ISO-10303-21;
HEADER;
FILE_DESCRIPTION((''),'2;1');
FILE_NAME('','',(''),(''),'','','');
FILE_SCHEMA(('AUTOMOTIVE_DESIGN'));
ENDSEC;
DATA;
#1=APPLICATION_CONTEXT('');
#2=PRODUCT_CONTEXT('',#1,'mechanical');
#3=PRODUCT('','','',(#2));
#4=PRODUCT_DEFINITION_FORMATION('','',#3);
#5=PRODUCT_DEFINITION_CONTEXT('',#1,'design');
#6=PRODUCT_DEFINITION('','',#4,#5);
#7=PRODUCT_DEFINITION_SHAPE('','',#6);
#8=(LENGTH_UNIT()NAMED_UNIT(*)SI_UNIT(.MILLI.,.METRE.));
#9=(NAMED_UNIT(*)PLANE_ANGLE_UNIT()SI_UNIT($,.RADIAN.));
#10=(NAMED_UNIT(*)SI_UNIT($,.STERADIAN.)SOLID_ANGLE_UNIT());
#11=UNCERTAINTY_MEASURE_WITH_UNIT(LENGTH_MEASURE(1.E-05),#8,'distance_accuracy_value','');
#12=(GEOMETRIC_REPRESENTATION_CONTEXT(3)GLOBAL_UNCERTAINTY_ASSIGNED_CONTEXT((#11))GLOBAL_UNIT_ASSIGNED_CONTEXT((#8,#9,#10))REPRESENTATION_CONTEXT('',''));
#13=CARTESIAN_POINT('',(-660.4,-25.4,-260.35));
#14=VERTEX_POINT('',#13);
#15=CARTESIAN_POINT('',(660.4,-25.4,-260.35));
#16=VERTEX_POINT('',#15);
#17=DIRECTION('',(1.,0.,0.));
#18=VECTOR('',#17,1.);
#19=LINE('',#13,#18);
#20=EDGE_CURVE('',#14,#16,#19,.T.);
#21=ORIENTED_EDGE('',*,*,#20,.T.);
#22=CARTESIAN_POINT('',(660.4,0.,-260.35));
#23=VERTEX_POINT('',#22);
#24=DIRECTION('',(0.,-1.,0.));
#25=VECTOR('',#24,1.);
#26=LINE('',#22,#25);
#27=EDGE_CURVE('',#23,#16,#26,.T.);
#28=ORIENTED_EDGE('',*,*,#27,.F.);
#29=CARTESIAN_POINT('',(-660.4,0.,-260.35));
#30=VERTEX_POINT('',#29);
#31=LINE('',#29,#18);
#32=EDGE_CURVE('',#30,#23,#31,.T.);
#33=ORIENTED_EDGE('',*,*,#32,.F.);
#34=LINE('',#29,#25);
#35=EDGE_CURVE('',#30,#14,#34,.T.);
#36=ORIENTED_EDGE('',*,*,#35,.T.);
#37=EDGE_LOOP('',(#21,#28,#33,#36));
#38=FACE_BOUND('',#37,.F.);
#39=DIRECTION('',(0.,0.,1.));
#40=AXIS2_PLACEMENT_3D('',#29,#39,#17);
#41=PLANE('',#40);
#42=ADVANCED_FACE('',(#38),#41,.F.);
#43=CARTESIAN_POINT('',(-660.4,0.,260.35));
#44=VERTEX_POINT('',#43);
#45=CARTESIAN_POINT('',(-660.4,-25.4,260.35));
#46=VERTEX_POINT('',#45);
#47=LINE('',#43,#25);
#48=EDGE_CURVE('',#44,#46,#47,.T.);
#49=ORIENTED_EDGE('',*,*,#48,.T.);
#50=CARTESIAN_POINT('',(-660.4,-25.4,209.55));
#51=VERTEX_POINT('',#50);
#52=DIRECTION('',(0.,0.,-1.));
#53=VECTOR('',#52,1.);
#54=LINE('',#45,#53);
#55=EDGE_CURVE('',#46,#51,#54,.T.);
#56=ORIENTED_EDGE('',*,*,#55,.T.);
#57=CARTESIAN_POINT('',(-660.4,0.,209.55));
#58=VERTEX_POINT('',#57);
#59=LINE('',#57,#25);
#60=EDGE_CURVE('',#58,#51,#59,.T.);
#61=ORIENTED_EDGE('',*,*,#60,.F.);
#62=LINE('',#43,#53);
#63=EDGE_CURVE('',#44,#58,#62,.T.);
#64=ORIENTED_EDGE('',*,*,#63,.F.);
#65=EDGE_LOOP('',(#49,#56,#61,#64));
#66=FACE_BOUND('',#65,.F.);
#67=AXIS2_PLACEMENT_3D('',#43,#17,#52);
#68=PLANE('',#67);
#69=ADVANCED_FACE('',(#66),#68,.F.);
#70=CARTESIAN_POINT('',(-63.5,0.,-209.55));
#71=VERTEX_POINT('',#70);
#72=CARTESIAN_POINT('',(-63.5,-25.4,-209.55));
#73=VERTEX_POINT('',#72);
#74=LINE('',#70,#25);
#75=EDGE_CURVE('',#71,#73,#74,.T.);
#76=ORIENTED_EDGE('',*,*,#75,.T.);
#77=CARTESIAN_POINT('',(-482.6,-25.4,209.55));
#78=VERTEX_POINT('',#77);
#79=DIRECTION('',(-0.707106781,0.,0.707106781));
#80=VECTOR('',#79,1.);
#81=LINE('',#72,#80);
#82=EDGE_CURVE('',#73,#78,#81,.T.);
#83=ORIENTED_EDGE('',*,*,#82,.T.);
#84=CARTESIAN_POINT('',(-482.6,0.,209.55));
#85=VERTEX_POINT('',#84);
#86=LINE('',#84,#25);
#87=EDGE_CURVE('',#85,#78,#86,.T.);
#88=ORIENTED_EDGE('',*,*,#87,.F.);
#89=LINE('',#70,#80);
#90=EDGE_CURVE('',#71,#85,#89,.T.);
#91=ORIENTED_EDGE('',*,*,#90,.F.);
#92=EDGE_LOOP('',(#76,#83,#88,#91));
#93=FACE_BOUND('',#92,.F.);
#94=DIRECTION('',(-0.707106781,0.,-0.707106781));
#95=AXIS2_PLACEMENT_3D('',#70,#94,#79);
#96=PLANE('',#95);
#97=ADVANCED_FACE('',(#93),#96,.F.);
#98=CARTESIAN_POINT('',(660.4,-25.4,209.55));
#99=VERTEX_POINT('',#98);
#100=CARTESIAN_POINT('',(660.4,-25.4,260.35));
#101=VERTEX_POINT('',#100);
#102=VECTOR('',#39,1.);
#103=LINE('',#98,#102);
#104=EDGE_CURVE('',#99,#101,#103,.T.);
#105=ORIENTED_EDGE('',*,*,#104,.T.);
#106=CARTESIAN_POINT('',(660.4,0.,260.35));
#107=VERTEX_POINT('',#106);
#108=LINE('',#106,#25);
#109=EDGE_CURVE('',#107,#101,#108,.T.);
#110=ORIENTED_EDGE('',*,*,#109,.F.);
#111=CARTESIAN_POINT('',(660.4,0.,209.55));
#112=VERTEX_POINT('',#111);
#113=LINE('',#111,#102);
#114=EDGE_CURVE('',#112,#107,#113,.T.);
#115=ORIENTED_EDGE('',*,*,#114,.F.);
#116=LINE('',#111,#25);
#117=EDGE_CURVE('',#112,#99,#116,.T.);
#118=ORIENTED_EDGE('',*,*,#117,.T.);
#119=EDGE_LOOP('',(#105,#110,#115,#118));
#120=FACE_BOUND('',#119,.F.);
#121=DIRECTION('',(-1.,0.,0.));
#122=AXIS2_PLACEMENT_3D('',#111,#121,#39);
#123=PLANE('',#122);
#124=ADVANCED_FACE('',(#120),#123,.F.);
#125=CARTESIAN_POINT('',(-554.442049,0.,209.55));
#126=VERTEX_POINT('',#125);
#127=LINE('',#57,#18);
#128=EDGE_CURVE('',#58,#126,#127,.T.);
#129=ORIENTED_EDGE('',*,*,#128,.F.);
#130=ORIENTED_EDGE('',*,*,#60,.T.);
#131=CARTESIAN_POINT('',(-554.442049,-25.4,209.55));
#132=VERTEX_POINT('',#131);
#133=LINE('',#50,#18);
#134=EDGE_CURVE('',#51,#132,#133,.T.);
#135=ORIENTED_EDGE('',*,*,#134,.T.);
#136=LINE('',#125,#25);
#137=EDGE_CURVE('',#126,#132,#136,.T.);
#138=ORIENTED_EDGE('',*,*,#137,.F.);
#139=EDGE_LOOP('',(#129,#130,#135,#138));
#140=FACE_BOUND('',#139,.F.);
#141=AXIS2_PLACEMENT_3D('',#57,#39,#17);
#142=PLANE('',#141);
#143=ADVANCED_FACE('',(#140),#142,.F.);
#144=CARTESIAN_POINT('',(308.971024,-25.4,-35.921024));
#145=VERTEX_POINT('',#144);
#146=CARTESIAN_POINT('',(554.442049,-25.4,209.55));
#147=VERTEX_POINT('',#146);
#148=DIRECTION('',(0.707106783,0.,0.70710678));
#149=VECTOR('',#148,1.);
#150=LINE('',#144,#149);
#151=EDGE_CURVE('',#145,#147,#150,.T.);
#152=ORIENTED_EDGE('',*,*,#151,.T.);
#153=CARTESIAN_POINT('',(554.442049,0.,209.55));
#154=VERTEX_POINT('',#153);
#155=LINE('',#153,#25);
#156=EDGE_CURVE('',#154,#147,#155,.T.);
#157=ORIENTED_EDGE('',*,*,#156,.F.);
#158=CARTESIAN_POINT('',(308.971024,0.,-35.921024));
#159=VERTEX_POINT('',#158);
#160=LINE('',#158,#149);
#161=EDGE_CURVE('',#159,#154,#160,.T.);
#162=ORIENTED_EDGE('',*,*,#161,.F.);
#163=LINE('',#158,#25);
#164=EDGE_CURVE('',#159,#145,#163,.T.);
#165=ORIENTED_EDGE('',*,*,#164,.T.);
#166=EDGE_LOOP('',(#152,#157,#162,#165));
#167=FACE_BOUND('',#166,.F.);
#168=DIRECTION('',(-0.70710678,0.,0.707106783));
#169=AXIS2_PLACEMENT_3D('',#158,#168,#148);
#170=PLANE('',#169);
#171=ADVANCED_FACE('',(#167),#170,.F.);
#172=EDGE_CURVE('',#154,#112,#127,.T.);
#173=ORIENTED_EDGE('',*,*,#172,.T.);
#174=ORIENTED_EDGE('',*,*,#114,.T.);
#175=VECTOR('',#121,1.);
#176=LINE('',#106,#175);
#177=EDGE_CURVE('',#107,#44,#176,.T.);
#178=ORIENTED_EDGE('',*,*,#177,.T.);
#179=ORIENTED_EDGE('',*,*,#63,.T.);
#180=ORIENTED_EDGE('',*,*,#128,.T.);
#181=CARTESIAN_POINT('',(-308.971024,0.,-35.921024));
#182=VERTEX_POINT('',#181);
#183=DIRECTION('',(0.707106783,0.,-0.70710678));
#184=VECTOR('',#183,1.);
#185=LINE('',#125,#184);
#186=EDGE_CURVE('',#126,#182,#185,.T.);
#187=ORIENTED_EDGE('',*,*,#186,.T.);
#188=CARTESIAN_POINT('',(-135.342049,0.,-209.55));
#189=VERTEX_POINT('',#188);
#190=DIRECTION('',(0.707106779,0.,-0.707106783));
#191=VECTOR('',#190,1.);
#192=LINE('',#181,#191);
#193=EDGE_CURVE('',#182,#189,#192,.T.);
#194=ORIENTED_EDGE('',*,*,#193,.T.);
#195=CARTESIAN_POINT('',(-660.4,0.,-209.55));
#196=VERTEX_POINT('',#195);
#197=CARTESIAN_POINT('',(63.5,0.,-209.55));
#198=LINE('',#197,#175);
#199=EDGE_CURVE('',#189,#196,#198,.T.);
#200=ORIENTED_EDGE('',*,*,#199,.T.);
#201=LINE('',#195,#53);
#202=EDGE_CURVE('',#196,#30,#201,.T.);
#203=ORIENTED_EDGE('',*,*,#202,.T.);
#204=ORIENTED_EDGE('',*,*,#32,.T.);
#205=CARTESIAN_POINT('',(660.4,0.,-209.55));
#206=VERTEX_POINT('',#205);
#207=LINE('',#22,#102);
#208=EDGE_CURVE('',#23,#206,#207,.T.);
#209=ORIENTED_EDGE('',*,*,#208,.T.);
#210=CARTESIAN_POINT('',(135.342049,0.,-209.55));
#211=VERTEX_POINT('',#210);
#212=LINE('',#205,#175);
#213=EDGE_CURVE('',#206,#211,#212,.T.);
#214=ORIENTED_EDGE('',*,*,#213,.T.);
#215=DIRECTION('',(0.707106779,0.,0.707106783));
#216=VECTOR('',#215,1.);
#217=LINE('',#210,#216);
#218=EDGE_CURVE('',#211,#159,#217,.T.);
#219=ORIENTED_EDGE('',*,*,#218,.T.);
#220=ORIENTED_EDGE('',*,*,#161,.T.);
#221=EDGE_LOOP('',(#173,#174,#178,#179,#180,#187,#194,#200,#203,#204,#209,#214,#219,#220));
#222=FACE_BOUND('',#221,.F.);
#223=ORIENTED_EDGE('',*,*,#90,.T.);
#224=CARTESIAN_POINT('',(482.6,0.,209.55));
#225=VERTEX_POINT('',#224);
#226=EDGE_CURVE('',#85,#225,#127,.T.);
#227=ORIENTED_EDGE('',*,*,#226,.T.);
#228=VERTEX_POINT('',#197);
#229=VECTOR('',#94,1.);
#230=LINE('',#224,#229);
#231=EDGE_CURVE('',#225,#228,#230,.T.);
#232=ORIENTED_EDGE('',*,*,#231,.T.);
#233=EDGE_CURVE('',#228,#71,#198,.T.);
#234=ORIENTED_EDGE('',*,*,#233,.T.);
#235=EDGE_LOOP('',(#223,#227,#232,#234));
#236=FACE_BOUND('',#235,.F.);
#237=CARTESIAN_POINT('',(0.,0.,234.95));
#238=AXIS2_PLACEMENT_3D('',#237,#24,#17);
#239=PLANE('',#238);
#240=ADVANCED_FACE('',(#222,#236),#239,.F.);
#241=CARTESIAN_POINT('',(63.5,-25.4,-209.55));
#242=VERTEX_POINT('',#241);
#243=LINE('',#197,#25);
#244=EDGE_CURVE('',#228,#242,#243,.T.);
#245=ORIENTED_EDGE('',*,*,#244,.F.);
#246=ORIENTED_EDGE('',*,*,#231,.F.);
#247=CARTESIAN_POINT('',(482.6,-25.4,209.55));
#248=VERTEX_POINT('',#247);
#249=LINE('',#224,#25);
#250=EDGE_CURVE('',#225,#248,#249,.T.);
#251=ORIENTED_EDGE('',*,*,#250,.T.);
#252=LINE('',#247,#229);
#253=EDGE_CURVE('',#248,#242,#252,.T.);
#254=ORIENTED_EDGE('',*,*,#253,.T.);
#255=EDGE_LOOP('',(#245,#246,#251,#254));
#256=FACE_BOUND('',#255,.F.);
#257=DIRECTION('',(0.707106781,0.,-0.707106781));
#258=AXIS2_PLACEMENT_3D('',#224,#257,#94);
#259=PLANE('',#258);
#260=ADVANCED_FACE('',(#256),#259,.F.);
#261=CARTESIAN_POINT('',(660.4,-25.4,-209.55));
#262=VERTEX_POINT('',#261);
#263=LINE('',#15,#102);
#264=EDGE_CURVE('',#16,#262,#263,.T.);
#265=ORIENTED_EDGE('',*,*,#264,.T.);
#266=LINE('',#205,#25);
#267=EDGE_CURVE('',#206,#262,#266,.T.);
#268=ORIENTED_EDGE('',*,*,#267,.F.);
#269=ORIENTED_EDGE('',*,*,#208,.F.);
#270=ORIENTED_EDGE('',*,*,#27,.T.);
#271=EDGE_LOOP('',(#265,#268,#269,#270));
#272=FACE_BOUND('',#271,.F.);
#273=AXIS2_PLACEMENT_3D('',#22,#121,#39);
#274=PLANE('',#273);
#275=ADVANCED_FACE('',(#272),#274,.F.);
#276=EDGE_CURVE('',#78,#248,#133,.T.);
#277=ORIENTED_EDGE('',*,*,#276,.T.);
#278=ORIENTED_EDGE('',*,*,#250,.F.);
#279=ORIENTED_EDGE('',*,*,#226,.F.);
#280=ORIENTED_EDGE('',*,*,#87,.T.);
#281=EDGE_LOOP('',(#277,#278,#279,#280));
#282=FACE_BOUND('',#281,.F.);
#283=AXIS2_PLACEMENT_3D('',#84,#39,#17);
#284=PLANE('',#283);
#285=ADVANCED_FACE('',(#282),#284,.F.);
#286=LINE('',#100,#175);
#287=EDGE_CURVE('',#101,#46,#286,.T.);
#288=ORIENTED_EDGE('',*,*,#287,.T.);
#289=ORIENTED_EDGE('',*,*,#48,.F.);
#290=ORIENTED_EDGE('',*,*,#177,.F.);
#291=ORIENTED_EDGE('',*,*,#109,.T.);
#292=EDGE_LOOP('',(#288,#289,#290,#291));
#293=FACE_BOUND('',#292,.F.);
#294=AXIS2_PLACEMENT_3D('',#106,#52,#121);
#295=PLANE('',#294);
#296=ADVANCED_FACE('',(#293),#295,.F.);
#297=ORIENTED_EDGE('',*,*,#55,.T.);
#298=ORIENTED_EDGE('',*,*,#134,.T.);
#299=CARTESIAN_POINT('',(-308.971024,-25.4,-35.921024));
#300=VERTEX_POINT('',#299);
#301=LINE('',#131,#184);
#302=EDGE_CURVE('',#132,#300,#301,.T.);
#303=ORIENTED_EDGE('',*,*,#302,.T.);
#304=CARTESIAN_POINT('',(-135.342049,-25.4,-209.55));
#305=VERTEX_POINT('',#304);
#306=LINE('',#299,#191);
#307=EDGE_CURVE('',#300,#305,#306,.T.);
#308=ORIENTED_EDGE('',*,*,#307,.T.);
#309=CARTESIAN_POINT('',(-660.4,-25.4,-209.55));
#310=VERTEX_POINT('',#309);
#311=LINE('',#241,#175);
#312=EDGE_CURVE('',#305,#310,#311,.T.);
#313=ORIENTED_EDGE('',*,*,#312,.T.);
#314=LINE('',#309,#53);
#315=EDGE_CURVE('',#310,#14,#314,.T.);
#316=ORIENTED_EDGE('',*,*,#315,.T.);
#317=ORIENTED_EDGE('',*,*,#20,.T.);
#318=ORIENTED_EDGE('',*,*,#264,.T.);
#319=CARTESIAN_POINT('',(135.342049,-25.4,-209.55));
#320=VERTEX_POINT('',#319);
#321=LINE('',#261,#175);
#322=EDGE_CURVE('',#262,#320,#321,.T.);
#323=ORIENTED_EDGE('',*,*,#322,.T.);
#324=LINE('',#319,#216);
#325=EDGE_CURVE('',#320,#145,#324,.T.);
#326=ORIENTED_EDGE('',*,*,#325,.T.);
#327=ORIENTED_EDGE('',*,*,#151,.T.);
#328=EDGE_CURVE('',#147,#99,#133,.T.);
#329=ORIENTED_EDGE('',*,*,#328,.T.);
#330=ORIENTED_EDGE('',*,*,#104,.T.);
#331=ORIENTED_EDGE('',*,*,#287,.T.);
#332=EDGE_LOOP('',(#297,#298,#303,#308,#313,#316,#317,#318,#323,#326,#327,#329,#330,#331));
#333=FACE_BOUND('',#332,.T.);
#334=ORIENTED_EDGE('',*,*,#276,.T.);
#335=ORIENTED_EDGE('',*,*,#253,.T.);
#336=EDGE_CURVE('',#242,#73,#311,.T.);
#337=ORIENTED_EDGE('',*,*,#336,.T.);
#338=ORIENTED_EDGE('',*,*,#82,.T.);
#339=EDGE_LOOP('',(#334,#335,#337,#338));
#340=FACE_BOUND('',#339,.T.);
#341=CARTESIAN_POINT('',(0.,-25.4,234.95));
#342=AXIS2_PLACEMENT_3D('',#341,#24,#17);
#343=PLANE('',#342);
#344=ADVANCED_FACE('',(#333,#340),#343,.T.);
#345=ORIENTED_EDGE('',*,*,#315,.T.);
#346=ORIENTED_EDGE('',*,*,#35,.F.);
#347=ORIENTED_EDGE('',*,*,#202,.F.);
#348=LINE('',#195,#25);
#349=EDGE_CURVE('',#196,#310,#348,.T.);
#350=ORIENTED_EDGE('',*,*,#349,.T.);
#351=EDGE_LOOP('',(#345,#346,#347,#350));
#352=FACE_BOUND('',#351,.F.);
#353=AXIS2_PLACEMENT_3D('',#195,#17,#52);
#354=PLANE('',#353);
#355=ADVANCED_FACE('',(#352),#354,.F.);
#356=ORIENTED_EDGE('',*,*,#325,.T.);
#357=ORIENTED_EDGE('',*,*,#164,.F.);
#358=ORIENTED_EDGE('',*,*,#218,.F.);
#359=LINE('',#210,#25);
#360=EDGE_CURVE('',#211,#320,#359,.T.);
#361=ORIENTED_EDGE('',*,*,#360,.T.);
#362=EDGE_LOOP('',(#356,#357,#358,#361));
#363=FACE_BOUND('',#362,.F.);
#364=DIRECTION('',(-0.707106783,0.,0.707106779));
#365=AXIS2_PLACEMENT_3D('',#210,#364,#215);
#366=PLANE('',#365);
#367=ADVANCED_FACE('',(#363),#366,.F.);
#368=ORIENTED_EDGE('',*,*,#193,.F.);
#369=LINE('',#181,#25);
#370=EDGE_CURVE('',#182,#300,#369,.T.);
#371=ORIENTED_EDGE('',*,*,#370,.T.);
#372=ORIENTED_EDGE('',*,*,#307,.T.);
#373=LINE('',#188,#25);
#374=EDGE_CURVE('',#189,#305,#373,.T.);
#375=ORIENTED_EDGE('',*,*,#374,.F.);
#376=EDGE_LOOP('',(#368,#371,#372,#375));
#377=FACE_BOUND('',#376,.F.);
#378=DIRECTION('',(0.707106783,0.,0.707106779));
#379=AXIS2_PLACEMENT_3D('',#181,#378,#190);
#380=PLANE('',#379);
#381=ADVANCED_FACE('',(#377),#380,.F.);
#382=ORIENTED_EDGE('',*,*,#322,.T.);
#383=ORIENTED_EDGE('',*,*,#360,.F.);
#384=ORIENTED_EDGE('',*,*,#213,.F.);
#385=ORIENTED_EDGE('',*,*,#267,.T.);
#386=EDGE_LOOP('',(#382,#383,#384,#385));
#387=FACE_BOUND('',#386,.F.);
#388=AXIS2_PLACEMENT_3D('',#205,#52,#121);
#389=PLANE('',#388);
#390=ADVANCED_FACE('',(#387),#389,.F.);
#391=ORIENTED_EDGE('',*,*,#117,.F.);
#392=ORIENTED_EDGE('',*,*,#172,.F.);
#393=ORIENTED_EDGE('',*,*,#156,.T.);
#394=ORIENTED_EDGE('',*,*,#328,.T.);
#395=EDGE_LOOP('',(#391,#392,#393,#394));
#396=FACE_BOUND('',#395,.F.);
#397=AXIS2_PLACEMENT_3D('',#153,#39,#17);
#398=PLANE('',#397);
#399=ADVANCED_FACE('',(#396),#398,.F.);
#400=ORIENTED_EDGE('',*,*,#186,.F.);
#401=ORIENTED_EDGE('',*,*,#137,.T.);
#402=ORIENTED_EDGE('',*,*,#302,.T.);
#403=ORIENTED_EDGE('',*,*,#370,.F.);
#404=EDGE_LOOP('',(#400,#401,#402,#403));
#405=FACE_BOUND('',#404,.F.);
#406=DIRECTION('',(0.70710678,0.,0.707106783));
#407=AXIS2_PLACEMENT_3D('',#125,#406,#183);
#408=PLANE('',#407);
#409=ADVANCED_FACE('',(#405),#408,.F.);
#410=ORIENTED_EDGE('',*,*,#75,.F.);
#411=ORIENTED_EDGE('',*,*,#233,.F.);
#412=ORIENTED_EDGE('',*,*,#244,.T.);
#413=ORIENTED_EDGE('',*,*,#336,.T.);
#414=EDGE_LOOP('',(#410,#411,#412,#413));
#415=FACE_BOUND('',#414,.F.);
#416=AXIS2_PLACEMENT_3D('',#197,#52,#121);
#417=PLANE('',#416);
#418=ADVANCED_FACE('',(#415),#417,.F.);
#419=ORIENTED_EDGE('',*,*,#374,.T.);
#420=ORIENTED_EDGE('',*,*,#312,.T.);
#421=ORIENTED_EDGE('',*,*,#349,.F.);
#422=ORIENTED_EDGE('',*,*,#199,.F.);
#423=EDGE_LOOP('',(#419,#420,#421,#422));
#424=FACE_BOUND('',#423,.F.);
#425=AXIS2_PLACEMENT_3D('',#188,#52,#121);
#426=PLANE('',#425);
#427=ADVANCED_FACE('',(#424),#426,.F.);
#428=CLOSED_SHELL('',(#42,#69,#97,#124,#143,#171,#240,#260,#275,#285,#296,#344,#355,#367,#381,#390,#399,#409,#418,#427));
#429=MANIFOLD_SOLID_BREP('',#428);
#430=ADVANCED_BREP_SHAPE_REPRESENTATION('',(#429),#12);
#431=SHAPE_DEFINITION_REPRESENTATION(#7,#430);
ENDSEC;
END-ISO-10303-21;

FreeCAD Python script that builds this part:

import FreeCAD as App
import Part
import Sketcher
Q = App.Units.Quantity


def add_polygon(sketch, points):
    """Adds a closed chain of lines whose ends are joined by coincident constraints."""
    first, n = sketch.GeometryCount, len(points)
    for a, b in zip(points, points[1:] + points[:1]):
        sketch.addGeometry(Part.LineSegment(App.Vector(*a, 0), App.Vector(*b, 0)), False)
    for i in range(n):
        sketch.addConstraint(Sketcher.Constraint("Coincident", first + i, 2, first + (i + 1) % n, 1))

doc = App.newDocument("Part")
body = doc.addObject("PartDesign::Body", "Body")

# Sketch on XZ plane
sketch1 = doc.addObject("Sketcher::SketchObject", "Sketch")
body.addObject(sketch1)
sketch1.AttachmentSupport = (doc.XZ_Plane, [""])
sketch1.MapMode = "FlatFace"
add_polygon(sketch1, [(660.4, 209.55), (660.4, 260.35), (-660.4, 260.35), (-660.4, 209.55), (-554.442049, 209.55), (-308.971024, -35.921024), (-135.342049, -209.55), (-660.4, -209.55), (-660.4, -260.35), (660.4, -260.35), (660.4, -209.55), (135.342049, -209.55), (308.971024, -35.921024), (554.442049, 209.55)])  # lines 0-13
add_polygon(sketch1, [(-482.6, 209.55), (482.6, 209.55), (63.5, -209.55), (-63.5, -209.55)])  # lines 14-17
sketch1.addConstraint([
    Sketcher.Constraint("Vertical", 0),
    Sketcher.Constraint("Horizontal", 1),
    Sketcher.Constraint("Vertical", 2),
    Sketcher.Constraint("Horizontal", 3),
    Sketcher.Constraint("Horizontal", 6),
    Sketcher.Constraint("Vertical", 7),
    Sketcher.Constraint("Horizontal", 8),
    Sketcher.Constraint("Vertical", 9),
    Sketcher.Constraint("Horizontal", 10),
    Sketcher.Constraint("Horizontal", 13),
    Sketcher.Constraint("Horizontal", 14),
    Sketcher.Constraint("Horizontal", 16),
    Sketcher.Constraint("Symmetric", 0, 2, 7, 2, -1, 1),
    Sketcher.Constraint("Symmetric", 2, 2, 9, 2, -1, 1),
    Sketcher.Constraint("Symmetric", 6, 2, 9, 2, -2),
    Sketcher.Constraint("Symmetric", 4, 2, 11, 2, -2),
    Sketcher.Constraint("Symmetric", 3, 2, 12, 2, -2),
    Sketcher.Constraint("Parallel", 4, 5),
    Sketcher.Constraint("Perpendicular", 5, 11),
    Sketcher.Constraint("Parallel", 11, 12),
    Sketcher.Constraint("Parallel", 12, 15),
    Sketcher.Constraint("Perpendicular", 15, 17),
    Sketcher.Constraint("Horizontal", 13, 2, 14, 2),
    Sketcher.Constraint("Horizontal", 10, 2, 15, 2),
    Sketcher.Constraint("DistanceX", 1, 2, 1, 1, Q("52 in")),
    Sketcher.Constraint("DistanceX", 14, 1, 14, 2, Q("38 in")),
    Sketcher.Constraint("DistanceX", 16, 2, 16, 1, Q("5 in")),
    Sketcher.Constraint("DistanceY", 0, 1, 0, 2, Q("2 in")),
    Sketcher.Constraint("DistanceX", -1, 1, 14, 2, Q("19 in")),
    Sketcher.Constraint("DistanceX", 3, 1, 3, 2, Q("105.957951 mm")),
    Sketcher.Constraint("Distance", 5, Q("245.548452 mm")),
])
pad1 = doc.addObject("PartDesign::Pad", "Pad")
body.addObject(pad1)
pad1.Profile = sketch1
pad1.Length = Q("1 in")

doc.recompute()
